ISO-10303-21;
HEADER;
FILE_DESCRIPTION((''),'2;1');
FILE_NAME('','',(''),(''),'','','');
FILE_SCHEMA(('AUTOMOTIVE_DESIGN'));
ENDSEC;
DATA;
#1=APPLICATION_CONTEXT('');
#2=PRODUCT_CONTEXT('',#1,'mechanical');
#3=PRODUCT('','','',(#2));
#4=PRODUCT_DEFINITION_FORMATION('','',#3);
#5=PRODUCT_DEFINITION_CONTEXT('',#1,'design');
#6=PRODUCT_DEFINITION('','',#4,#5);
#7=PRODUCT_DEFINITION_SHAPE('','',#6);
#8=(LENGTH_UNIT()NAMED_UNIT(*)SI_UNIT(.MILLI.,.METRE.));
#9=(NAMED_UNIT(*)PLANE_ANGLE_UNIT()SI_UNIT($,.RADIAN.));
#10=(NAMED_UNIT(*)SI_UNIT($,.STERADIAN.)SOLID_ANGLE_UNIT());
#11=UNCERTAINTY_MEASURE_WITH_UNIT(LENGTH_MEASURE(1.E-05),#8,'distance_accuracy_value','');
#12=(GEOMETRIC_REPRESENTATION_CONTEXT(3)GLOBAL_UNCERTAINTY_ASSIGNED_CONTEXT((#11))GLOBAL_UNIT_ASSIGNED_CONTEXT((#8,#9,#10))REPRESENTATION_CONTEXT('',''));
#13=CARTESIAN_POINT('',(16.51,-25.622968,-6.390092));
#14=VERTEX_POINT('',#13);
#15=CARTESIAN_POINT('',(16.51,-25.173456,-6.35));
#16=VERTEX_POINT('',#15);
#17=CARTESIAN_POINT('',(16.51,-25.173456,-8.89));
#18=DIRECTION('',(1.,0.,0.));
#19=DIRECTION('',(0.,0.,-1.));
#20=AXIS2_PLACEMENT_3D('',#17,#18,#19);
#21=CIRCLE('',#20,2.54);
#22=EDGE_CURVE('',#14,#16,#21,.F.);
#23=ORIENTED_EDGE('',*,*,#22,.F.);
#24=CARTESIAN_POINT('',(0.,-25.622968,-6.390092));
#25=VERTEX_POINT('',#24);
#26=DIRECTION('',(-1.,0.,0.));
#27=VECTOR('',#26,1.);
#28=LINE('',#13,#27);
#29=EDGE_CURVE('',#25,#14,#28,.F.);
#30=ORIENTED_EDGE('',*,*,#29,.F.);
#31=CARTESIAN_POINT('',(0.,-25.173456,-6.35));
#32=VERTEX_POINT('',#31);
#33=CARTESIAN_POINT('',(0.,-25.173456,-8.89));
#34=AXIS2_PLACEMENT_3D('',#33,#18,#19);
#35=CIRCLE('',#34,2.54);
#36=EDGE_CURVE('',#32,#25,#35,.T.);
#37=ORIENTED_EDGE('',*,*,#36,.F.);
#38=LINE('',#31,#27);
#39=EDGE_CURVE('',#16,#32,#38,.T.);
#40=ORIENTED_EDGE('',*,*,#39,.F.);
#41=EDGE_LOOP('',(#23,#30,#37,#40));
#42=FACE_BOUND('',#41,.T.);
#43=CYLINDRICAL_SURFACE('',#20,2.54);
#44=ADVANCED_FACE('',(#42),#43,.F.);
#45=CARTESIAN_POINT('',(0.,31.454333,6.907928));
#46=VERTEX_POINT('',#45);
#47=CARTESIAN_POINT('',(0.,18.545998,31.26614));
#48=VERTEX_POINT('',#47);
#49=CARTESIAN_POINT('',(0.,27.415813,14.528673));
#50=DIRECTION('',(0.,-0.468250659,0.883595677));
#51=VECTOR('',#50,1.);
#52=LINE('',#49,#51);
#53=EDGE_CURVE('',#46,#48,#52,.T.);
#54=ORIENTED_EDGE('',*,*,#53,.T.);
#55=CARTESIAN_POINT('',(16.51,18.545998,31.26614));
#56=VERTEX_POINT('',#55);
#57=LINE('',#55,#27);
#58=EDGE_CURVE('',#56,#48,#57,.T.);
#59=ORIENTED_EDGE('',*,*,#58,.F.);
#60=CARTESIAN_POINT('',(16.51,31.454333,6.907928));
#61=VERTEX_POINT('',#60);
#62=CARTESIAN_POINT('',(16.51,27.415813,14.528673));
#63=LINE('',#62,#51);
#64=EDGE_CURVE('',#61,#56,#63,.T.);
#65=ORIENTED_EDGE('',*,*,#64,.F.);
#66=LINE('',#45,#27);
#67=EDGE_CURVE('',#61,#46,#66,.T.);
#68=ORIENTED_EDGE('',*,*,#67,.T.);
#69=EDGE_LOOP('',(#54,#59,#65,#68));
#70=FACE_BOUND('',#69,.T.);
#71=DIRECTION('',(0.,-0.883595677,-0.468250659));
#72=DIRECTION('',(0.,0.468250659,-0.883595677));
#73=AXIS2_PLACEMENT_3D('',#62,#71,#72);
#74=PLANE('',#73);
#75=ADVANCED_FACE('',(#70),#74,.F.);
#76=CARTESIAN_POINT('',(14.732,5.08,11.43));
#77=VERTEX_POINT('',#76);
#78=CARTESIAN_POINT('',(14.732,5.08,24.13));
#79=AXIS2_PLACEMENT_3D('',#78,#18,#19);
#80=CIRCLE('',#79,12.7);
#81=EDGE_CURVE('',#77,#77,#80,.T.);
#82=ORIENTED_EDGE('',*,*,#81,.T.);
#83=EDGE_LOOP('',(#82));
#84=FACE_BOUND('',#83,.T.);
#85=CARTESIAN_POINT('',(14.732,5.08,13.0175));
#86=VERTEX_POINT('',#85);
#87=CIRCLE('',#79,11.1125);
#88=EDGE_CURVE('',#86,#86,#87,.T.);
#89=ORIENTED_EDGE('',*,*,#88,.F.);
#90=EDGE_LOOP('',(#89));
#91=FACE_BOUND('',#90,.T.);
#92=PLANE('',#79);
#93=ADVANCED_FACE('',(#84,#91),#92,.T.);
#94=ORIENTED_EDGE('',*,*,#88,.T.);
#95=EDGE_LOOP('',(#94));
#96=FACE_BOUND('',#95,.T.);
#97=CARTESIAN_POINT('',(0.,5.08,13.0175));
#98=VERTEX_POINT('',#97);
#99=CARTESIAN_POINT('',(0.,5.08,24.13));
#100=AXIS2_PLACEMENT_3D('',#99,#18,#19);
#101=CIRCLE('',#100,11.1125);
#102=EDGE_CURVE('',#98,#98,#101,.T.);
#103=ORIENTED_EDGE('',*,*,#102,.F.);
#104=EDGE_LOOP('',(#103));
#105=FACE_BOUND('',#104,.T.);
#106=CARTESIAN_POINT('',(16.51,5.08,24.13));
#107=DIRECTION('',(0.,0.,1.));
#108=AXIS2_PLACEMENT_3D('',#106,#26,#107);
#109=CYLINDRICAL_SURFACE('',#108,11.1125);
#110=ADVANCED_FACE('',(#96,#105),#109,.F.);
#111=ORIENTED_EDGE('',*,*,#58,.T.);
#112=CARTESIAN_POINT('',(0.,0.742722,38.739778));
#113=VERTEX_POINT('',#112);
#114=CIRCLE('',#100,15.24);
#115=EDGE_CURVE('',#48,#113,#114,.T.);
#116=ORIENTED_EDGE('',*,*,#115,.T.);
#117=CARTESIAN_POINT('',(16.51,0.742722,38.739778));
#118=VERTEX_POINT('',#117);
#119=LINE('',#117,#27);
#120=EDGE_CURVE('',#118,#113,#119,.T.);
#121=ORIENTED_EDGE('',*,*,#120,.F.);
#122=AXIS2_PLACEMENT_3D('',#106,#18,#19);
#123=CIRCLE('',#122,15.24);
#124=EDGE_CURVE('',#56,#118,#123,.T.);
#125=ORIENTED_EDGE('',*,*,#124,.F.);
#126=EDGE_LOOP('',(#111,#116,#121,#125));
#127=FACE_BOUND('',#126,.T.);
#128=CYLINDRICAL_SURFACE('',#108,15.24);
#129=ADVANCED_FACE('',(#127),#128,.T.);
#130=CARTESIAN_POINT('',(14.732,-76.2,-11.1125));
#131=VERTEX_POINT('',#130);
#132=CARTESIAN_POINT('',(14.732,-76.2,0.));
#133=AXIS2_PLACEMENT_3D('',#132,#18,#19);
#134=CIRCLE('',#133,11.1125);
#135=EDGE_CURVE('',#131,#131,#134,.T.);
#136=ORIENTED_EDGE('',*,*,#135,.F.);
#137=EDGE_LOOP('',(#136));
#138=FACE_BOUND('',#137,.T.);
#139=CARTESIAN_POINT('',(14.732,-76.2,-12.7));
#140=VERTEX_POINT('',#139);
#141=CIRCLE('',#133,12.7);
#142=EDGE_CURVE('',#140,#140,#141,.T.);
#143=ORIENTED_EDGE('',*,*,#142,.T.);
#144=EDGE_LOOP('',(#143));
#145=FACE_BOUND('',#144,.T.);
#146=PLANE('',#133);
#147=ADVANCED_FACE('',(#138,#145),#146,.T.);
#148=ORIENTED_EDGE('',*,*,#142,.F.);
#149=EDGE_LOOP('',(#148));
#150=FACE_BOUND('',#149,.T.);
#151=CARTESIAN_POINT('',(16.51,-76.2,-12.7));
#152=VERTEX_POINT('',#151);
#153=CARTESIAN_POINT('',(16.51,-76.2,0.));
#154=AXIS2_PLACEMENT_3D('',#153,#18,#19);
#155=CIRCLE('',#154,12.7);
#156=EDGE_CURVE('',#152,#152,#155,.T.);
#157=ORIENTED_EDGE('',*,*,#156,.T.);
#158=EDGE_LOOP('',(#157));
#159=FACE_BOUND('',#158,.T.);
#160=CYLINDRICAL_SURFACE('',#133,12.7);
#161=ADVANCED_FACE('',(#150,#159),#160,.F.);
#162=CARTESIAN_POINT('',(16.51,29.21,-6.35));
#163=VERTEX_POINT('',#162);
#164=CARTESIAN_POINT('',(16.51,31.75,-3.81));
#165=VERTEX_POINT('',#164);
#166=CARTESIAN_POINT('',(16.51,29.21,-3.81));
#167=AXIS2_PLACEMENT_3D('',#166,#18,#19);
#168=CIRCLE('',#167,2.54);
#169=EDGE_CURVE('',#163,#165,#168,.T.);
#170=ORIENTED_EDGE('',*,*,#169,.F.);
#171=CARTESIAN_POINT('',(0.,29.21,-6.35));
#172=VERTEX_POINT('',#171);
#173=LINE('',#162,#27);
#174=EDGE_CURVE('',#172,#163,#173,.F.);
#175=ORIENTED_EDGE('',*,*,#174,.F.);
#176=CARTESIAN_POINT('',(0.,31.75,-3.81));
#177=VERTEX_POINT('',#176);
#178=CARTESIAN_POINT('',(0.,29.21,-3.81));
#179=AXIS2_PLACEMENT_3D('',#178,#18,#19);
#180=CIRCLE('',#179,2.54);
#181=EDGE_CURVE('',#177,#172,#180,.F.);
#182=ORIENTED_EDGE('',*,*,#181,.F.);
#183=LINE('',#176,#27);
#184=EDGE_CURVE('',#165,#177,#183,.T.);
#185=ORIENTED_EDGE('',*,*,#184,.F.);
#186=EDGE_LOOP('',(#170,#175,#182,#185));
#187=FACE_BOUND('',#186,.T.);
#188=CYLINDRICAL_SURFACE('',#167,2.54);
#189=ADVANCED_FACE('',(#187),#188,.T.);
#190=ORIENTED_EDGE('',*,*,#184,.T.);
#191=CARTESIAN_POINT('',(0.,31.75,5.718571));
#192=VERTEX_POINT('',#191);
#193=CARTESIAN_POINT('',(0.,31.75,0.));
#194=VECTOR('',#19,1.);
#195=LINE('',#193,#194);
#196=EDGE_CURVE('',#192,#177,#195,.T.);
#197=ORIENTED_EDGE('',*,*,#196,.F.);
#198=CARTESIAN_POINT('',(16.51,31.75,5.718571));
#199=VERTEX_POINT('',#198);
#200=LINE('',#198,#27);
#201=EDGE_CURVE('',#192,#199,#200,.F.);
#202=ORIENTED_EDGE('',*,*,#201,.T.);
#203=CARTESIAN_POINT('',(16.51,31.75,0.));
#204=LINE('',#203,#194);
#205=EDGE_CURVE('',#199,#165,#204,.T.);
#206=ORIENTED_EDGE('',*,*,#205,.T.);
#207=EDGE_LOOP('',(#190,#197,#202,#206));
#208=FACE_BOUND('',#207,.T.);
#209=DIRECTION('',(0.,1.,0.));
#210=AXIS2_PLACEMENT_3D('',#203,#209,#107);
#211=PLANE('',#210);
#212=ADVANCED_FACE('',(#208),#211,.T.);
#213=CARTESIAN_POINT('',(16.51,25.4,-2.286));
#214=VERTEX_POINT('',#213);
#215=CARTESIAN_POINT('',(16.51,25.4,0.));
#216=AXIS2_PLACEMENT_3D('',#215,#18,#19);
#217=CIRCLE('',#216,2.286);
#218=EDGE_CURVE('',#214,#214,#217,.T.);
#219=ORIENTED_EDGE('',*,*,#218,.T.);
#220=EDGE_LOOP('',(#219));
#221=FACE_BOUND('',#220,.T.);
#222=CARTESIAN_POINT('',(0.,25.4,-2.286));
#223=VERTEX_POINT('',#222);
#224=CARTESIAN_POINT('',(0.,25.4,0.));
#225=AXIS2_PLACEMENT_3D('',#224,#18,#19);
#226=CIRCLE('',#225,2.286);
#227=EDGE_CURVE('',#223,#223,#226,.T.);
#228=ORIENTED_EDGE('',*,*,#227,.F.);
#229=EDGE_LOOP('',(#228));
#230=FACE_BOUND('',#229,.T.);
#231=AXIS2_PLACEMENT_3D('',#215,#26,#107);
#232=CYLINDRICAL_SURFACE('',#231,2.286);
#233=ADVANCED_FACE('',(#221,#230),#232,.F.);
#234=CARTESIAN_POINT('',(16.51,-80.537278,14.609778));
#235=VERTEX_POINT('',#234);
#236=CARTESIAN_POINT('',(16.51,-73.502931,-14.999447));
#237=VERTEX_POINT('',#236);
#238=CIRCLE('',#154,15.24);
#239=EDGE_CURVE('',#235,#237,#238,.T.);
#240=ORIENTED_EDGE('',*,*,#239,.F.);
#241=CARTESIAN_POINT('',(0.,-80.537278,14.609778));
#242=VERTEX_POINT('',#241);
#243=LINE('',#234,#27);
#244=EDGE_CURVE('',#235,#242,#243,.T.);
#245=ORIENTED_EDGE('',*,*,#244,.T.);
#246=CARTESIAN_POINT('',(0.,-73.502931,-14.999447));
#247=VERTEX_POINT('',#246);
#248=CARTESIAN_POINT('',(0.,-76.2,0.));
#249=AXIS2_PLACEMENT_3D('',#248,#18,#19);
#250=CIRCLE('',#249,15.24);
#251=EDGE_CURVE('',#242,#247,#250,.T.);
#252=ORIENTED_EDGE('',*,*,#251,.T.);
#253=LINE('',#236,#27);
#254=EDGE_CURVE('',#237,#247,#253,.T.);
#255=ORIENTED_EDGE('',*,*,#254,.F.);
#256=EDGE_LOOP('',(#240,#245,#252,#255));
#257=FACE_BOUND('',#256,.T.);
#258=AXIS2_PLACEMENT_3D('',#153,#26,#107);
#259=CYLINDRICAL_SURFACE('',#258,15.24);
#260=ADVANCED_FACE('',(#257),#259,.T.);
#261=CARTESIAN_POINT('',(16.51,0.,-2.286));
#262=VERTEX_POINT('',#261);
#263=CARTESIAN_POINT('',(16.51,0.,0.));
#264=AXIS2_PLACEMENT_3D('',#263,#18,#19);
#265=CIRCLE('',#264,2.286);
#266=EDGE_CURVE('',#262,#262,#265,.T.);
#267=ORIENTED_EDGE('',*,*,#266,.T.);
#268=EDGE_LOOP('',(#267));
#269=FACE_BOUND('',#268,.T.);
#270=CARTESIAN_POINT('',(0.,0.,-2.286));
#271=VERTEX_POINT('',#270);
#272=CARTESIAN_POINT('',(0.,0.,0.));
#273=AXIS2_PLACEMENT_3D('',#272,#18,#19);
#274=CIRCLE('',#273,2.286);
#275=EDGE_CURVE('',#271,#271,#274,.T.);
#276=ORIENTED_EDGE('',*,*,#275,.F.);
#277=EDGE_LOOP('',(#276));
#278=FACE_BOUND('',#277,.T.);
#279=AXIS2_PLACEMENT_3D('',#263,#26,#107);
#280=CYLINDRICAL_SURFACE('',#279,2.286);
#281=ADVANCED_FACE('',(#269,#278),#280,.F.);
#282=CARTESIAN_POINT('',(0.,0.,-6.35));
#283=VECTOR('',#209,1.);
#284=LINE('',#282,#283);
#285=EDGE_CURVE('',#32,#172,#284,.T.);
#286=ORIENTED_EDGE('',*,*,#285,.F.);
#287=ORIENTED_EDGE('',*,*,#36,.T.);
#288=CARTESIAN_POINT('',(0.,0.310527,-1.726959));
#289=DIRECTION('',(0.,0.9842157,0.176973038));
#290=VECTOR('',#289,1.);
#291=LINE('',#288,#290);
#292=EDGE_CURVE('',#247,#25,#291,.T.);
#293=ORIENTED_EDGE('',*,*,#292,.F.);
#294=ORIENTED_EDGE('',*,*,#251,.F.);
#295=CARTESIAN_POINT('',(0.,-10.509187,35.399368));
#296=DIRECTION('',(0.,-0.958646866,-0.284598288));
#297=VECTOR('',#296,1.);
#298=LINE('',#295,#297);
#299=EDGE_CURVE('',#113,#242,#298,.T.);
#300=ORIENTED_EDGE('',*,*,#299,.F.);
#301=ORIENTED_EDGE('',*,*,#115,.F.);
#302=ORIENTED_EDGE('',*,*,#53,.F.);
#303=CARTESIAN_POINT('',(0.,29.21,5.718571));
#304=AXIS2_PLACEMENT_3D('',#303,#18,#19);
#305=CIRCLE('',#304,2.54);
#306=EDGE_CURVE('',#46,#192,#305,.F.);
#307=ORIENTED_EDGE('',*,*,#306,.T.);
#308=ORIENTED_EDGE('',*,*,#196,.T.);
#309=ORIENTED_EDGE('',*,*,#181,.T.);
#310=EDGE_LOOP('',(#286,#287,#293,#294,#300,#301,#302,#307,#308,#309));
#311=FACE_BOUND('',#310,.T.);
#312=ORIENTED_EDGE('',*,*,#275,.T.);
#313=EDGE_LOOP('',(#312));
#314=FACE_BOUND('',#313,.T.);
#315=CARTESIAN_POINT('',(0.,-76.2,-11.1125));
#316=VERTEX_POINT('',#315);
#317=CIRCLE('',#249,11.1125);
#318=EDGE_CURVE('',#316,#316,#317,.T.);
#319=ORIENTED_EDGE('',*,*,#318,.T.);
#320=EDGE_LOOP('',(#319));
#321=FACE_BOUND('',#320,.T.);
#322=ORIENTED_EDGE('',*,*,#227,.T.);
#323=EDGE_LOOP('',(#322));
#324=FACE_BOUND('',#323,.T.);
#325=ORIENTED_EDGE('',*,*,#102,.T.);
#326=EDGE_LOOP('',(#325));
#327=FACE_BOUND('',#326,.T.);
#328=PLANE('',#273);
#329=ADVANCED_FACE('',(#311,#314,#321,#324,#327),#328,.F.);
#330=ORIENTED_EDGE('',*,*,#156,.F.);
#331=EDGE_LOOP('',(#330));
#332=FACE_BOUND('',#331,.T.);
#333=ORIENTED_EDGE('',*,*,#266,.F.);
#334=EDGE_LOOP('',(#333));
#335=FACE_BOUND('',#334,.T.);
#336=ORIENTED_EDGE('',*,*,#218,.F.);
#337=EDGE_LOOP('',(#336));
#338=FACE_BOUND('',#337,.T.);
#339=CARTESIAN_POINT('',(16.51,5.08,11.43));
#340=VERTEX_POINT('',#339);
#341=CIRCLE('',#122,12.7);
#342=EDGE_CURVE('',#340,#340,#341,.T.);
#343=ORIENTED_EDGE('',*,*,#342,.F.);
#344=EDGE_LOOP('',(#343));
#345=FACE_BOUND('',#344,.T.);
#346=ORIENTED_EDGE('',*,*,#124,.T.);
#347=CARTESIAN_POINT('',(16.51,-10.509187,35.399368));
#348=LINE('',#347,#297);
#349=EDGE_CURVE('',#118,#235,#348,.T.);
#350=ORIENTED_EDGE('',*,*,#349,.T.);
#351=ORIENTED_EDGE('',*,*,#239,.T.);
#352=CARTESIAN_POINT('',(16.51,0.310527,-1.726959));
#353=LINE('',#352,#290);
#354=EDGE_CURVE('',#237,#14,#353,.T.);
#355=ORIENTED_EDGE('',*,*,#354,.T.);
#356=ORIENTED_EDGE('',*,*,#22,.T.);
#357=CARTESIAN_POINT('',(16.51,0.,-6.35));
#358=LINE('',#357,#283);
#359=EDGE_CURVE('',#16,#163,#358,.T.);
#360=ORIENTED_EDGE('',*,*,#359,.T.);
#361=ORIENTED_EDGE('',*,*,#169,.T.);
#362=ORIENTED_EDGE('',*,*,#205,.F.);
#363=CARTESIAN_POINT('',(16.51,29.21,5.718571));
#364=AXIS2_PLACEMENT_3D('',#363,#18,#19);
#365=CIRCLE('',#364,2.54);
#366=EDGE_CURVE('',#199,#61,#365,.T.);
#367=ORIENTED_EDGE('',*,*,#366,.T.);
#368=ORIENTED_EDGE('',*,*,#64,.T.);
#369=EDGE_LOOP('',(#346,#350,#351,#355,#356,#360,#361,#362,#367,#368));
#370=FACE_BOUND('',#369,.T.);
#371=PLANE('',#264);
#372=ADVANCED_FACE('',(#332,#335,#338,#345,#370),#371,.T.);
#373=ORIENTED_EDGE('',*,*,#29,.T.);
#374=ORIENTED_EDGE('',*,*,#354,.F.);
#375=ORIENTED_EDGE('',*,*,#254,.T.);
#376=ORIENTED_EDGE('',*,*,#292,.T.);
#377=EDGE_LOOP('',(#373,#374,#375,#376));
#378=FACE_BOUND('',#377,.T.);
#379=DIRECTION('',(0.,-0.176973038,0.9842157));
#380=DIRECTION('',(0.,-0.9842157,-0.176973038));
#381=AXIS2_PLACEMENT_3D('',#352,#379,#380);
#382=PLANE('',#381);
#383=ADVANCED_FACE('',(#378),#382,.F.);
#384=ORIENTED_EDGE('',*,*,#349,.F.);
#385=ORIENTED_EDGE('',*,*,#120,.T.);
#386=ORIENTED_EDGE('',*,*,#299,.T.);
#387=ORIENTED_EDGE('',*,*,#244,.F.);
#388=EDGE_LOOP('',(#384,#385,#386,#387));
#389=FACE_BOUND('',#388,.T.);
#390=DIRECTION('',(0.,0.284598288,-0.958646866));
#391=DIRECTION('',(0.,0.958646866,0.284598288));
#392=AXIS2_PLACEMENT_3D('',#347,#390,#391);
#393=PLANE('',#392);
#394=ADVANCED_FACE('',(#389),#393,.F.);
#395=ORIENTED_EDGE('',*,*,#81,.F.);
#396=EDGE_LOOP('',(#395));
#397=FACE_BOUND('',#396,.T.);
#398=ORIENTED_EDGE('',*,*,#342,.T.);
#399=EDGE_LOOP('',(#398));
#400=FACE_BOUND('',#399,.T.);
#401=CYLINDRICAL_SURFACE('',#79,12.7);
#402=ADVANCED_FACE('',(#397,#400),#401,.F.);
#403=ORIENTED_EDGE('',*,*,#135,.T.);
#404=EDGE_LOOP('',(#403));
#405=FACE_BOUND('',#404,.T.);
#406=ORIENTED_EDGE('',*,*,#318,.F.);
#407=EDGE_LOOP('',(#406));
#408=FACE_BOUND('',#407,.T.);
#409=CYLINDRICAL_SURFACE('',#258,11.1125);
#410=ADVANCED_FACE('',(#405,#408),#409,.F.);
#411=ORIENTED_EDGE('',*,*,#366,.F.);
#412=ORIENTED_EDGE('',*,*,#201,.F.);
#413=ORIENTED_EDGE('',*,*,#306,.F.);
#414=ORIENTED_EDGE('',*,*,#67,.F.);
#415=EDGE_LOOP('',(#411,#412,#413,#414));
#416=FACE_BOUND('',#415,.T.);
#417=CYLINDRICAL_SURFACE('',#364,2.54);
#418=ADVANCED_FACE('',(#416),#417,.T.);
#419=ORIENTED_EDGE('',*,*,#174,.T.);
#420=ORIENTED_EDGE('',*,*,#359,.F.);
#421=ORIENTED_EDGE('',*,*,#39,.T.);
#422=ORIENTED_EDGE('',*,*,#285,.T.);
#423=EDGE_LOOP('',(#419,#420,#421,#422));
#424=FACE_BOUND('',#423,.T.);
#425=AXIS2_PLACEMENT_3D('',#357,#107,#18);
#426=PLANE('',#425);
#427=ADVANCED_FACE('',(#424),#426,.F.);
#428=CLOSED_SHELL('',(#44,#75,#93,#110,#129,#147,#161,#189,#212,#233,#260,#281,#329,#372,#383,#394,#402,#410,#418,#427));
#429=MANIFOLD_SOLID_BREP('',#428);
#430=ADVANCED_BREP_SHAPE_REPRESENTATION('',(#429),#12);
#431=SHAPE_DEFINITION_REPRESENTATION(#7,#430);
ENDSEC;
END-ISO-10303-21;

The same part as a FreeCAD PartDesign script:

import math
import FreeCAD as App
import Part
import Sketcher

V = App.Vector
Q = App.Units.Quantity


def edges_at(feature, points):
    """Names of the edges that pass closest to the given points."""
    edges = feature.Shape.Edges
    near = lambda p: min(range(len(edges)), key=lambda i: edges[i].distToShape(Part.Vertex(*p))[0])
    return sorted({f"Edge{near(p) + 1}" for p in points})

doc = App.newDocument("Part")
params = doc.addObject("Spreadsheet::Sheet", "Params")
for row, (alias, value) in enumerate([
    ("sketch1_radius", "0.6 in"),
    ("sketch1_diameter", "0.18 in"),
    ("sketch1_diameter2", "0.875 in"),
    ("sketch1_height", "0.5 in"),
    ("sketch1_width", "2.25 in"),
    ("pad1_length", "0.65 in"),
    ("sketch2_diameter", "1 in"),
    ("pocket1_length", "0.07 in"),
    ("fillet_radius", "0.1 in"),
], start=1):
    params.set(f"A{row}", alias)
    params.set(f"B{row}", "=" + value)
    params.setAlias(f"B{row}", alias)

body = doc.addObject("PartDesign::Body", "Body")

# Sketch on YZ plane
sketch1 = body.newObject("Sketcher::SketchObject", "Sketch")
sketch1.AttachmentSupport = (doc.getObject("YZ_Plane"), [""])
sketch1.MapMode = "FlatFace"
sketch1.addGeometry(Part.LineSegment(V(0.7, 38.7, 0), V(-80.5, 14.6, 0)), False)
sketch1.addGeometry(Part.ArcOfCircle(Part.Circle(V(-76.2, 0, 0), V(0, 0, 1), 15.2), math.radians(107), math.radians(280)), False)
sketch1.addGeometry(Part.LineSegment(V(-73.5, -15, 0), V(-25.4, -6.3, 0)), False)
sketch1.addGeometry(Part.LineSegment(V(-25.4, -6.3, 0), V(31.8, -6.3, 0)), False)
sketch1.addGeometry(Part.LineSegment(V(31.8, -6.3, 0), V(31.8, 6.3, 0)), False)
sketch1.addGeometry(Part.LineSegment(V(31.8, 6.3, 0), V(18.5, 31.3, 0)), False)
sketch1.addGeometry(Part.ArcOfCircle(Part.Circle(V(5.1, 24.1, 0), V(0, 0, 1), 15.2), math.radians(28), math.radians(107)), False)
sketch1.addGeometry(Part.Circle(V(-76.2, 0, 0), V(0, 0, 1), 11.1), False)
sketch1.addGeometry(Part.Circle(V(5.1, 24.1, 0), V(0, 0, 1), 11.1), False)
sketch1.addGeometry(Part.Circle(V(0, 0, 0), V(0, 0, 1), 2.3), False)
sketch1.addGeometry(Part.Circle(V(25.4, 0, 0), V(0, 0, 1), 2.3), False)
sketch1.addConstraint(Sketcher.Constraint("Tangent", 0, 2, 1, 1))
sketch1.addConstraint(Sketcher.Constraint("Tangent", 1, 2, 2, 1))
sketch1.addConstraint(Sketcher.Constraint("Coincident", 2, 2, 3, 1))
sketch1.addConstraint(Sketcher.Constraint("Coincident", 3, 2, 4, 1))
sketch1.addConstraint(Sketcher.Constraint("Coincident", 4, 2, 5, 1))
sketch1.addConstraint(Sketcher.Constraint("Tangent", 5, 2, 6, 1))
sketch1.addConstraint(Sketcher.Constraint("Tangent", 6, 2, 0, 1))
sketch1.addConstraint(Sketcher.Constraint("Horizontal", 3))
sketch1.addConstraint(Sketcher.Constraint("Vertical", 4))
sketch1.addConstraint(Sketcher.Constraint("Coincident", 9, 3, -1, 1))
sketch1.addConstraint(Sketcher.Constraint("Coincident", 7, 3, 1, 3))
sketch1.addConstraint(Sketcher.Constraint("Coincident", 8, 3, 6, 3))
sketch1.addConstraint(Sketcher.Constraint("Equal", 1, 6))
sketch1.addConstraint(Sketcher.Constraint("Equal", 7, 8))
sketch1.addConstraint(Sketcher.Constraint("Equal", 9, 10))
sketch1.addConstraint(Sketcher.Constraint("PointOnObject", 1, 3, -1))
sketch1.addConstraint(Sketcher.Constraint("PointOnObject", 10, 3, -1))
sketch1.addConstraint(Sketcher.Constraint("Radius", 1, Q("0.6 in")))
sketch1.addConstraint(Sketcher.Constraint("Diameter", 9, Q("0.18 in")))
sketch1.addConstraint(Sketcher.Constraint("Diameter", 7, Q("0.875 in")))
sketch1.addConstraint(Sketcher.Constraint("DistanceY", 4, 1, 4, 2, Q("0.5 in")))
sketch1.addConstraint(Sketcher.Constraint("DistanceX", 1, 3, -1, 1, Q("3 in")))
sketch1.addConstraint(Sketcher.Constraint("DistanceX", -1, 1, 10, 3, Q("1 in")))
sketch1.addConstraint(Sketcher.Constraint("DistanceX", 2, 2, -1, 1, Q("1 in")))
sketch1.addConstraint(Sketcher.Constraint("DistanceX", 3, 1, 3, 2, Q("2.25 in")))
sketch1.addConstraint(Sketcher.Constraint("DistanceX", -1, 1, 6, 3, Q("0.2 in")))
sketch1.addConstraint(Sketcher.Constraint("DistanceY", 2, 2, 8, 3, Q("1.2 in")))
sketch1.addConstraint(Sketcher.Constraint("DistanceY", -1, 1, 6, 3, Q("0.95 in")))
sketch1.setExpression("Constraints[17]", "Params.sketch1_radius")
sketch1.setExpression("Constraints[18]", "Params.sketch1_diameter")
sketch1.setExpression("Constraints[19]", "Params.sketch1_diameter2")
sketch1.setExpression("Constraints[20]", "Params.sketch1_height")
sketch1.setExpression("Constraints[24]", "Params.sketch1_width")
pad1 = body.newObject("PartDesign::Pad", "Pad")
pad1.Profile = sketch1
pad1.setExpression("Length", "Params.pad1_length")

# Sketch on YZ plane
sketch2 = body.newObject("Sketcher::SketchObject", "Sketch001")
sketch2.AttachmentSupport = (doc.getObject("YZ_Plane"), [""])
sketch2.MapMode = "FlatFace"
sketch2.AttachmentOffset = App.Placement(V(0, 0, 0.65 * 25.4), App.Rotation())
sketch2.addGeometry(Part.Circle(V(-76, 0, 0), V(0, 0, 1), 13), False)
sketch2.addGeometry(Part.Circle(V(5, 24, 0), V(0, 0, 1), 13), False)
sketch2.addConstraint(Sketcher.Constraint("Equal", 0, 1))
sketch2.addConstraint(Sketcher.Constraint("PointOnObject", 0, 3, -1))
sketch2.addConstraint(Sketcher.Constraint("Diameter", 0, Q("1 in")))
sketch2.addConstraint(Sketcher.Constraint("DistanceX", 0, 3, -1, 1, Q("3 in")))
sketch2.addConstraint(Sketcher.Constraint("DistanceX", -1, 1, 1, 3, Q("0.2 in")))
sketch2.addConstraint(Sketcher.Constraint("DistanceY", -1, 1, 1, 3, Q("0.95 in")))
sketch2.setExpression("Constraints[2]", "Params.sketch2_diameter")
pocket1 = body.newObject("PartDesign::Pocket", "Pocket")
pocket1.Profile = sketch2
pocket1.setExpression("Length", "Params.pocket1_length")
doc.recompute()

fillet = body.newObject("PartDesign::Fillet", "Fillet")
fillet.Base = (pocket1, edges_at(pocket1, [(8.255, 31.75, 6.35), (8.255, 31.75, -6.35), (8.255, -25.4, -6.35)]))
fillet.setExpression("Radius", "Params.fillet_radius")

doc.recompute()
